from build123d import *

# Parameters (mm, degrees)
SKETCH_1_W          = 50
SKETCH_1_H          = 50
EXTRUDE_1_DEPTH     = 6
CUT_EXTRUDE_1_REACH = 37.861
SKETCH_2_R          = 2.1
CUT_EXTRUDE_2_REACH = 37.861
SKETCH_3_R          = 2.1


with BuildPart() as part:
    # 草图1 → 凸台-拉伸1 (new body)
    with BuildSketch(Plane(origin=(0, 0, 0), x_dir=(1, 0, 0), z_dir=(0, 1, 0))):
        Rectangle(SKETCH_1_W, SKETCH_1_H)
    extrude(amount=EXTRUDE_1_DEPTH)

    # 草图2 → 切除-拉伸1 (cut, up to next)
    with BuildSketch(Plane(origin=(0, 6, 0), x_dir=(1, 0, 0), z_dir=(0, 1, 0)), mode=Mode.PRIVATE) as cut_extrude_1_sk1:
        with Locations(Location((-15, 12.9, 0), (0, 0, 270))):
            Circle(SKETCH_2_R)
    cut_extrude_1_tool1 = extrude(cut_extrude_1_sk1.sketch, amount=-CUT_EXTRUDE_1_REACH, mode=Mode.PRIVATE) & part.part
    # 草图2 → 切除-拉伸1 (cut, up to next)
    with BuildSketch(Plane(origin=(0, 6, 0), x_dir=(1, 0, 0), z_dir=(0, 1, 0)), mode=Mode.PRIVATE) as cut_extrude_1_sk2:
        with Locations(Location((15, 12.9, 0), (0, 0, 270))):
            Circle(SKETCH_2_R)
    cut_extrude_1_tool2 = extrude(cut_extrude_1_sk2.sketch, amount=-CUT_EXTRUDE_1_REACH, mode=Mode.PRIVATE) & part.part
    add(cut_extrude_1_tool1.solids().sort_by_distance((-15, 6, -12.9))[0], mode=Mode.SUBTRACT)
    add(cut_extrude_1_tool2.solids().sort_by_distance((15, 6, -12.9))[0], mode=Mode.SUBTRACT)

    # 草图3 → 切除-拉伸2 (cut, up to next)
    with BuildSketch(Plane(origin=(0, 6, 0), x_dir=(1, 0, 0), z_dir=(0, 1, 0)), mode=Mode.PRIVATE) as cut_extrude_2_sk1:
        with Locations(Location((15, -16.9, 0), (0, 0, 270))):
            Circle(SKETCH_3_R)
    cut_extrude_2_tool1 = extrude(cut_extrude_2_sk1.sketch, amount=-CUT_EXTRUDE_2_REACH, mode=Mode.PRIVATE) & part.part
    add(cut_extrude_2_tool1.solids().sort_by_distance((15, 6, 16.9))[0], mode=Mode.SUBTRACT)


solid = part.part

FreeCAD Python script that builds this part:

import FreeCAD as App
import Part
import Sketcher
from FreeCAD import Vector
Q = App.Units.Quantity


def add_polygon(sketch, points):
    """Adds a closed chain of lines whose ends are joined by coincident constraints."""
    first, n = sketch.GeometryCount, len(points)
    for a, b in zip(points, points[1:] + points[:1]):
        sketch.addGeometry(Part.LineSegment(App.Vector(*a, 0), App.Vector(*b, 0)), False)
    for i in range(n):
        sketch.addConstraint(Sketcher.Constraint("Coincident", first + i, 2, first + (i + 1) % n, 1))

doc = App.newDocument("Part")
body = doc.addObject("PartDesign::Body", "Body")

sketch1 = body.newObject("Sketcher::SketchObject", "Sketch")
sketch1.AttachmentSupport = (doc.getObject("XZ_Plane"), [""])
sketch1.MapMode = "FlatFace"
add_polygon(sketch1, [(-25, -25), (-25, 25), (25, 25), (25, -25)])
sketch1.addConstraint([
    Sketcher.Constraint("Vertical", 0),
    Sketcher.Constraint("Horizontal", 1),
    Sketcher.Constraint("Vertical", 2),
    Sketcher.Constraint("Horizontal", 3),
    Sketcher.Constraint("Symmetric", 0, 2, 2, 2, -1, 1),
    Sketcher.Constraint("Equal", 3, 0),
    Sketcher.Constraint("DistanceX", 1, 1, 1, 2, Q("50 mm")),
])
pad1 = body.newObject("PartDesign::Pad", "Pad")
pad1.Profile = sketch1
pad1.Length = 6
pad1.Reversed = True

sketch2 = body.newObject("Sketcher::SketchObject", "Sketch001")
sketch2.AttachmentSupport = (doc.getObject("XZ_Plane"), [""])
sketch2.MapMode = "FlatFace"
sketch2.AttachmentOffset = App.Placement(Vector(0, 0, -6), App.Rotation())
sketch2.addGeometry(Part.Circle(Vector(-15, -12.9, 0), Vector(0, 0, 1), 2.1), False)
sketch2.addConstraint([
    Sketcher.Constraint("Diameter", 0, Q("4.2 mm")),
    Sketcher.Constraint("DistanceX", 0, 3, -1, 1, Q("15 mm")),
    Sketcher.Constraint("DistanceY", 0, 3, -1, 1, Q("12.9 mm")),
])
pocket1 = body.newObject("PartDesign::Pocket", "Pocket")
pocket1.Profile = sketch2
pocket1.Type = "UpToFirst"
pocket1.Reversed = True

sketch3 = body.newObject("Sketcher::SketchObject", "Sketch002")
sketch3.AttachmentSupport = (doc.getObject("XZ_Plane"), [""])
sketch3.MapMode = "FlatFace"
sketch3.AttachmentOffset = App.Placement(Vector(0, 0, -6), App.Rotation())
sketch3.addGeometry(Part.Circle(Vector(15, -12.9, 0), Vector(0, 0, 1), 2.1), False)
sketch3.addConstraint([
    Sketcher.Constraint("Diameter", 0, Q("4.2 mm")),
    Sketcher.Constraint("DistanceX", -1, 1, 0, 3, Q("15 mm")),
    Sketcher.Constraint("DistanceY", 0, 3, -1, 1, Q("12.9 mm")),
])
pocket2 = body.newObject("PartDesign::Pocket", "Pocket001")
pocket2.Profile = sketch3
pocket2.Type = "UpToFirst"
pocket2.Reversed = True

sketch4 = body.newObject("Sketcher::SketchObject", "Sketch003")
sketch4.AttachmentSupport = (doc.getObject("XZ_Plane"), [""])
sketch4.MapMode = "FlatFace"
sketch4.AttachmentOffset = App.Placement(Vector(0, 0, -6), App.Rotation())
sketch4.addGeometry(Part.Circle(Vector(15, 16.9, 0), Vector(0, 0, 1), 2.1), False)
sketch4.addConstraint([
    Sketcher.Constraint("Diameter", 0, Q("4.2 mm")),
    Sketcher.Constraint("DistanceX", -1, 1, 0, 3, Q("15 mm")),
    Sketcher.Constraint("DistanceY", -1, 1, 0, 3, Q("16.9 mm")),
])
pocket3 = body.newObject("PartDesign::Pocket", "Pocket002")
pocket3.Profile = sketch4
pocket3.Type = "UpToFirst"
pocket3.Reversed = True

doc.recompute()
